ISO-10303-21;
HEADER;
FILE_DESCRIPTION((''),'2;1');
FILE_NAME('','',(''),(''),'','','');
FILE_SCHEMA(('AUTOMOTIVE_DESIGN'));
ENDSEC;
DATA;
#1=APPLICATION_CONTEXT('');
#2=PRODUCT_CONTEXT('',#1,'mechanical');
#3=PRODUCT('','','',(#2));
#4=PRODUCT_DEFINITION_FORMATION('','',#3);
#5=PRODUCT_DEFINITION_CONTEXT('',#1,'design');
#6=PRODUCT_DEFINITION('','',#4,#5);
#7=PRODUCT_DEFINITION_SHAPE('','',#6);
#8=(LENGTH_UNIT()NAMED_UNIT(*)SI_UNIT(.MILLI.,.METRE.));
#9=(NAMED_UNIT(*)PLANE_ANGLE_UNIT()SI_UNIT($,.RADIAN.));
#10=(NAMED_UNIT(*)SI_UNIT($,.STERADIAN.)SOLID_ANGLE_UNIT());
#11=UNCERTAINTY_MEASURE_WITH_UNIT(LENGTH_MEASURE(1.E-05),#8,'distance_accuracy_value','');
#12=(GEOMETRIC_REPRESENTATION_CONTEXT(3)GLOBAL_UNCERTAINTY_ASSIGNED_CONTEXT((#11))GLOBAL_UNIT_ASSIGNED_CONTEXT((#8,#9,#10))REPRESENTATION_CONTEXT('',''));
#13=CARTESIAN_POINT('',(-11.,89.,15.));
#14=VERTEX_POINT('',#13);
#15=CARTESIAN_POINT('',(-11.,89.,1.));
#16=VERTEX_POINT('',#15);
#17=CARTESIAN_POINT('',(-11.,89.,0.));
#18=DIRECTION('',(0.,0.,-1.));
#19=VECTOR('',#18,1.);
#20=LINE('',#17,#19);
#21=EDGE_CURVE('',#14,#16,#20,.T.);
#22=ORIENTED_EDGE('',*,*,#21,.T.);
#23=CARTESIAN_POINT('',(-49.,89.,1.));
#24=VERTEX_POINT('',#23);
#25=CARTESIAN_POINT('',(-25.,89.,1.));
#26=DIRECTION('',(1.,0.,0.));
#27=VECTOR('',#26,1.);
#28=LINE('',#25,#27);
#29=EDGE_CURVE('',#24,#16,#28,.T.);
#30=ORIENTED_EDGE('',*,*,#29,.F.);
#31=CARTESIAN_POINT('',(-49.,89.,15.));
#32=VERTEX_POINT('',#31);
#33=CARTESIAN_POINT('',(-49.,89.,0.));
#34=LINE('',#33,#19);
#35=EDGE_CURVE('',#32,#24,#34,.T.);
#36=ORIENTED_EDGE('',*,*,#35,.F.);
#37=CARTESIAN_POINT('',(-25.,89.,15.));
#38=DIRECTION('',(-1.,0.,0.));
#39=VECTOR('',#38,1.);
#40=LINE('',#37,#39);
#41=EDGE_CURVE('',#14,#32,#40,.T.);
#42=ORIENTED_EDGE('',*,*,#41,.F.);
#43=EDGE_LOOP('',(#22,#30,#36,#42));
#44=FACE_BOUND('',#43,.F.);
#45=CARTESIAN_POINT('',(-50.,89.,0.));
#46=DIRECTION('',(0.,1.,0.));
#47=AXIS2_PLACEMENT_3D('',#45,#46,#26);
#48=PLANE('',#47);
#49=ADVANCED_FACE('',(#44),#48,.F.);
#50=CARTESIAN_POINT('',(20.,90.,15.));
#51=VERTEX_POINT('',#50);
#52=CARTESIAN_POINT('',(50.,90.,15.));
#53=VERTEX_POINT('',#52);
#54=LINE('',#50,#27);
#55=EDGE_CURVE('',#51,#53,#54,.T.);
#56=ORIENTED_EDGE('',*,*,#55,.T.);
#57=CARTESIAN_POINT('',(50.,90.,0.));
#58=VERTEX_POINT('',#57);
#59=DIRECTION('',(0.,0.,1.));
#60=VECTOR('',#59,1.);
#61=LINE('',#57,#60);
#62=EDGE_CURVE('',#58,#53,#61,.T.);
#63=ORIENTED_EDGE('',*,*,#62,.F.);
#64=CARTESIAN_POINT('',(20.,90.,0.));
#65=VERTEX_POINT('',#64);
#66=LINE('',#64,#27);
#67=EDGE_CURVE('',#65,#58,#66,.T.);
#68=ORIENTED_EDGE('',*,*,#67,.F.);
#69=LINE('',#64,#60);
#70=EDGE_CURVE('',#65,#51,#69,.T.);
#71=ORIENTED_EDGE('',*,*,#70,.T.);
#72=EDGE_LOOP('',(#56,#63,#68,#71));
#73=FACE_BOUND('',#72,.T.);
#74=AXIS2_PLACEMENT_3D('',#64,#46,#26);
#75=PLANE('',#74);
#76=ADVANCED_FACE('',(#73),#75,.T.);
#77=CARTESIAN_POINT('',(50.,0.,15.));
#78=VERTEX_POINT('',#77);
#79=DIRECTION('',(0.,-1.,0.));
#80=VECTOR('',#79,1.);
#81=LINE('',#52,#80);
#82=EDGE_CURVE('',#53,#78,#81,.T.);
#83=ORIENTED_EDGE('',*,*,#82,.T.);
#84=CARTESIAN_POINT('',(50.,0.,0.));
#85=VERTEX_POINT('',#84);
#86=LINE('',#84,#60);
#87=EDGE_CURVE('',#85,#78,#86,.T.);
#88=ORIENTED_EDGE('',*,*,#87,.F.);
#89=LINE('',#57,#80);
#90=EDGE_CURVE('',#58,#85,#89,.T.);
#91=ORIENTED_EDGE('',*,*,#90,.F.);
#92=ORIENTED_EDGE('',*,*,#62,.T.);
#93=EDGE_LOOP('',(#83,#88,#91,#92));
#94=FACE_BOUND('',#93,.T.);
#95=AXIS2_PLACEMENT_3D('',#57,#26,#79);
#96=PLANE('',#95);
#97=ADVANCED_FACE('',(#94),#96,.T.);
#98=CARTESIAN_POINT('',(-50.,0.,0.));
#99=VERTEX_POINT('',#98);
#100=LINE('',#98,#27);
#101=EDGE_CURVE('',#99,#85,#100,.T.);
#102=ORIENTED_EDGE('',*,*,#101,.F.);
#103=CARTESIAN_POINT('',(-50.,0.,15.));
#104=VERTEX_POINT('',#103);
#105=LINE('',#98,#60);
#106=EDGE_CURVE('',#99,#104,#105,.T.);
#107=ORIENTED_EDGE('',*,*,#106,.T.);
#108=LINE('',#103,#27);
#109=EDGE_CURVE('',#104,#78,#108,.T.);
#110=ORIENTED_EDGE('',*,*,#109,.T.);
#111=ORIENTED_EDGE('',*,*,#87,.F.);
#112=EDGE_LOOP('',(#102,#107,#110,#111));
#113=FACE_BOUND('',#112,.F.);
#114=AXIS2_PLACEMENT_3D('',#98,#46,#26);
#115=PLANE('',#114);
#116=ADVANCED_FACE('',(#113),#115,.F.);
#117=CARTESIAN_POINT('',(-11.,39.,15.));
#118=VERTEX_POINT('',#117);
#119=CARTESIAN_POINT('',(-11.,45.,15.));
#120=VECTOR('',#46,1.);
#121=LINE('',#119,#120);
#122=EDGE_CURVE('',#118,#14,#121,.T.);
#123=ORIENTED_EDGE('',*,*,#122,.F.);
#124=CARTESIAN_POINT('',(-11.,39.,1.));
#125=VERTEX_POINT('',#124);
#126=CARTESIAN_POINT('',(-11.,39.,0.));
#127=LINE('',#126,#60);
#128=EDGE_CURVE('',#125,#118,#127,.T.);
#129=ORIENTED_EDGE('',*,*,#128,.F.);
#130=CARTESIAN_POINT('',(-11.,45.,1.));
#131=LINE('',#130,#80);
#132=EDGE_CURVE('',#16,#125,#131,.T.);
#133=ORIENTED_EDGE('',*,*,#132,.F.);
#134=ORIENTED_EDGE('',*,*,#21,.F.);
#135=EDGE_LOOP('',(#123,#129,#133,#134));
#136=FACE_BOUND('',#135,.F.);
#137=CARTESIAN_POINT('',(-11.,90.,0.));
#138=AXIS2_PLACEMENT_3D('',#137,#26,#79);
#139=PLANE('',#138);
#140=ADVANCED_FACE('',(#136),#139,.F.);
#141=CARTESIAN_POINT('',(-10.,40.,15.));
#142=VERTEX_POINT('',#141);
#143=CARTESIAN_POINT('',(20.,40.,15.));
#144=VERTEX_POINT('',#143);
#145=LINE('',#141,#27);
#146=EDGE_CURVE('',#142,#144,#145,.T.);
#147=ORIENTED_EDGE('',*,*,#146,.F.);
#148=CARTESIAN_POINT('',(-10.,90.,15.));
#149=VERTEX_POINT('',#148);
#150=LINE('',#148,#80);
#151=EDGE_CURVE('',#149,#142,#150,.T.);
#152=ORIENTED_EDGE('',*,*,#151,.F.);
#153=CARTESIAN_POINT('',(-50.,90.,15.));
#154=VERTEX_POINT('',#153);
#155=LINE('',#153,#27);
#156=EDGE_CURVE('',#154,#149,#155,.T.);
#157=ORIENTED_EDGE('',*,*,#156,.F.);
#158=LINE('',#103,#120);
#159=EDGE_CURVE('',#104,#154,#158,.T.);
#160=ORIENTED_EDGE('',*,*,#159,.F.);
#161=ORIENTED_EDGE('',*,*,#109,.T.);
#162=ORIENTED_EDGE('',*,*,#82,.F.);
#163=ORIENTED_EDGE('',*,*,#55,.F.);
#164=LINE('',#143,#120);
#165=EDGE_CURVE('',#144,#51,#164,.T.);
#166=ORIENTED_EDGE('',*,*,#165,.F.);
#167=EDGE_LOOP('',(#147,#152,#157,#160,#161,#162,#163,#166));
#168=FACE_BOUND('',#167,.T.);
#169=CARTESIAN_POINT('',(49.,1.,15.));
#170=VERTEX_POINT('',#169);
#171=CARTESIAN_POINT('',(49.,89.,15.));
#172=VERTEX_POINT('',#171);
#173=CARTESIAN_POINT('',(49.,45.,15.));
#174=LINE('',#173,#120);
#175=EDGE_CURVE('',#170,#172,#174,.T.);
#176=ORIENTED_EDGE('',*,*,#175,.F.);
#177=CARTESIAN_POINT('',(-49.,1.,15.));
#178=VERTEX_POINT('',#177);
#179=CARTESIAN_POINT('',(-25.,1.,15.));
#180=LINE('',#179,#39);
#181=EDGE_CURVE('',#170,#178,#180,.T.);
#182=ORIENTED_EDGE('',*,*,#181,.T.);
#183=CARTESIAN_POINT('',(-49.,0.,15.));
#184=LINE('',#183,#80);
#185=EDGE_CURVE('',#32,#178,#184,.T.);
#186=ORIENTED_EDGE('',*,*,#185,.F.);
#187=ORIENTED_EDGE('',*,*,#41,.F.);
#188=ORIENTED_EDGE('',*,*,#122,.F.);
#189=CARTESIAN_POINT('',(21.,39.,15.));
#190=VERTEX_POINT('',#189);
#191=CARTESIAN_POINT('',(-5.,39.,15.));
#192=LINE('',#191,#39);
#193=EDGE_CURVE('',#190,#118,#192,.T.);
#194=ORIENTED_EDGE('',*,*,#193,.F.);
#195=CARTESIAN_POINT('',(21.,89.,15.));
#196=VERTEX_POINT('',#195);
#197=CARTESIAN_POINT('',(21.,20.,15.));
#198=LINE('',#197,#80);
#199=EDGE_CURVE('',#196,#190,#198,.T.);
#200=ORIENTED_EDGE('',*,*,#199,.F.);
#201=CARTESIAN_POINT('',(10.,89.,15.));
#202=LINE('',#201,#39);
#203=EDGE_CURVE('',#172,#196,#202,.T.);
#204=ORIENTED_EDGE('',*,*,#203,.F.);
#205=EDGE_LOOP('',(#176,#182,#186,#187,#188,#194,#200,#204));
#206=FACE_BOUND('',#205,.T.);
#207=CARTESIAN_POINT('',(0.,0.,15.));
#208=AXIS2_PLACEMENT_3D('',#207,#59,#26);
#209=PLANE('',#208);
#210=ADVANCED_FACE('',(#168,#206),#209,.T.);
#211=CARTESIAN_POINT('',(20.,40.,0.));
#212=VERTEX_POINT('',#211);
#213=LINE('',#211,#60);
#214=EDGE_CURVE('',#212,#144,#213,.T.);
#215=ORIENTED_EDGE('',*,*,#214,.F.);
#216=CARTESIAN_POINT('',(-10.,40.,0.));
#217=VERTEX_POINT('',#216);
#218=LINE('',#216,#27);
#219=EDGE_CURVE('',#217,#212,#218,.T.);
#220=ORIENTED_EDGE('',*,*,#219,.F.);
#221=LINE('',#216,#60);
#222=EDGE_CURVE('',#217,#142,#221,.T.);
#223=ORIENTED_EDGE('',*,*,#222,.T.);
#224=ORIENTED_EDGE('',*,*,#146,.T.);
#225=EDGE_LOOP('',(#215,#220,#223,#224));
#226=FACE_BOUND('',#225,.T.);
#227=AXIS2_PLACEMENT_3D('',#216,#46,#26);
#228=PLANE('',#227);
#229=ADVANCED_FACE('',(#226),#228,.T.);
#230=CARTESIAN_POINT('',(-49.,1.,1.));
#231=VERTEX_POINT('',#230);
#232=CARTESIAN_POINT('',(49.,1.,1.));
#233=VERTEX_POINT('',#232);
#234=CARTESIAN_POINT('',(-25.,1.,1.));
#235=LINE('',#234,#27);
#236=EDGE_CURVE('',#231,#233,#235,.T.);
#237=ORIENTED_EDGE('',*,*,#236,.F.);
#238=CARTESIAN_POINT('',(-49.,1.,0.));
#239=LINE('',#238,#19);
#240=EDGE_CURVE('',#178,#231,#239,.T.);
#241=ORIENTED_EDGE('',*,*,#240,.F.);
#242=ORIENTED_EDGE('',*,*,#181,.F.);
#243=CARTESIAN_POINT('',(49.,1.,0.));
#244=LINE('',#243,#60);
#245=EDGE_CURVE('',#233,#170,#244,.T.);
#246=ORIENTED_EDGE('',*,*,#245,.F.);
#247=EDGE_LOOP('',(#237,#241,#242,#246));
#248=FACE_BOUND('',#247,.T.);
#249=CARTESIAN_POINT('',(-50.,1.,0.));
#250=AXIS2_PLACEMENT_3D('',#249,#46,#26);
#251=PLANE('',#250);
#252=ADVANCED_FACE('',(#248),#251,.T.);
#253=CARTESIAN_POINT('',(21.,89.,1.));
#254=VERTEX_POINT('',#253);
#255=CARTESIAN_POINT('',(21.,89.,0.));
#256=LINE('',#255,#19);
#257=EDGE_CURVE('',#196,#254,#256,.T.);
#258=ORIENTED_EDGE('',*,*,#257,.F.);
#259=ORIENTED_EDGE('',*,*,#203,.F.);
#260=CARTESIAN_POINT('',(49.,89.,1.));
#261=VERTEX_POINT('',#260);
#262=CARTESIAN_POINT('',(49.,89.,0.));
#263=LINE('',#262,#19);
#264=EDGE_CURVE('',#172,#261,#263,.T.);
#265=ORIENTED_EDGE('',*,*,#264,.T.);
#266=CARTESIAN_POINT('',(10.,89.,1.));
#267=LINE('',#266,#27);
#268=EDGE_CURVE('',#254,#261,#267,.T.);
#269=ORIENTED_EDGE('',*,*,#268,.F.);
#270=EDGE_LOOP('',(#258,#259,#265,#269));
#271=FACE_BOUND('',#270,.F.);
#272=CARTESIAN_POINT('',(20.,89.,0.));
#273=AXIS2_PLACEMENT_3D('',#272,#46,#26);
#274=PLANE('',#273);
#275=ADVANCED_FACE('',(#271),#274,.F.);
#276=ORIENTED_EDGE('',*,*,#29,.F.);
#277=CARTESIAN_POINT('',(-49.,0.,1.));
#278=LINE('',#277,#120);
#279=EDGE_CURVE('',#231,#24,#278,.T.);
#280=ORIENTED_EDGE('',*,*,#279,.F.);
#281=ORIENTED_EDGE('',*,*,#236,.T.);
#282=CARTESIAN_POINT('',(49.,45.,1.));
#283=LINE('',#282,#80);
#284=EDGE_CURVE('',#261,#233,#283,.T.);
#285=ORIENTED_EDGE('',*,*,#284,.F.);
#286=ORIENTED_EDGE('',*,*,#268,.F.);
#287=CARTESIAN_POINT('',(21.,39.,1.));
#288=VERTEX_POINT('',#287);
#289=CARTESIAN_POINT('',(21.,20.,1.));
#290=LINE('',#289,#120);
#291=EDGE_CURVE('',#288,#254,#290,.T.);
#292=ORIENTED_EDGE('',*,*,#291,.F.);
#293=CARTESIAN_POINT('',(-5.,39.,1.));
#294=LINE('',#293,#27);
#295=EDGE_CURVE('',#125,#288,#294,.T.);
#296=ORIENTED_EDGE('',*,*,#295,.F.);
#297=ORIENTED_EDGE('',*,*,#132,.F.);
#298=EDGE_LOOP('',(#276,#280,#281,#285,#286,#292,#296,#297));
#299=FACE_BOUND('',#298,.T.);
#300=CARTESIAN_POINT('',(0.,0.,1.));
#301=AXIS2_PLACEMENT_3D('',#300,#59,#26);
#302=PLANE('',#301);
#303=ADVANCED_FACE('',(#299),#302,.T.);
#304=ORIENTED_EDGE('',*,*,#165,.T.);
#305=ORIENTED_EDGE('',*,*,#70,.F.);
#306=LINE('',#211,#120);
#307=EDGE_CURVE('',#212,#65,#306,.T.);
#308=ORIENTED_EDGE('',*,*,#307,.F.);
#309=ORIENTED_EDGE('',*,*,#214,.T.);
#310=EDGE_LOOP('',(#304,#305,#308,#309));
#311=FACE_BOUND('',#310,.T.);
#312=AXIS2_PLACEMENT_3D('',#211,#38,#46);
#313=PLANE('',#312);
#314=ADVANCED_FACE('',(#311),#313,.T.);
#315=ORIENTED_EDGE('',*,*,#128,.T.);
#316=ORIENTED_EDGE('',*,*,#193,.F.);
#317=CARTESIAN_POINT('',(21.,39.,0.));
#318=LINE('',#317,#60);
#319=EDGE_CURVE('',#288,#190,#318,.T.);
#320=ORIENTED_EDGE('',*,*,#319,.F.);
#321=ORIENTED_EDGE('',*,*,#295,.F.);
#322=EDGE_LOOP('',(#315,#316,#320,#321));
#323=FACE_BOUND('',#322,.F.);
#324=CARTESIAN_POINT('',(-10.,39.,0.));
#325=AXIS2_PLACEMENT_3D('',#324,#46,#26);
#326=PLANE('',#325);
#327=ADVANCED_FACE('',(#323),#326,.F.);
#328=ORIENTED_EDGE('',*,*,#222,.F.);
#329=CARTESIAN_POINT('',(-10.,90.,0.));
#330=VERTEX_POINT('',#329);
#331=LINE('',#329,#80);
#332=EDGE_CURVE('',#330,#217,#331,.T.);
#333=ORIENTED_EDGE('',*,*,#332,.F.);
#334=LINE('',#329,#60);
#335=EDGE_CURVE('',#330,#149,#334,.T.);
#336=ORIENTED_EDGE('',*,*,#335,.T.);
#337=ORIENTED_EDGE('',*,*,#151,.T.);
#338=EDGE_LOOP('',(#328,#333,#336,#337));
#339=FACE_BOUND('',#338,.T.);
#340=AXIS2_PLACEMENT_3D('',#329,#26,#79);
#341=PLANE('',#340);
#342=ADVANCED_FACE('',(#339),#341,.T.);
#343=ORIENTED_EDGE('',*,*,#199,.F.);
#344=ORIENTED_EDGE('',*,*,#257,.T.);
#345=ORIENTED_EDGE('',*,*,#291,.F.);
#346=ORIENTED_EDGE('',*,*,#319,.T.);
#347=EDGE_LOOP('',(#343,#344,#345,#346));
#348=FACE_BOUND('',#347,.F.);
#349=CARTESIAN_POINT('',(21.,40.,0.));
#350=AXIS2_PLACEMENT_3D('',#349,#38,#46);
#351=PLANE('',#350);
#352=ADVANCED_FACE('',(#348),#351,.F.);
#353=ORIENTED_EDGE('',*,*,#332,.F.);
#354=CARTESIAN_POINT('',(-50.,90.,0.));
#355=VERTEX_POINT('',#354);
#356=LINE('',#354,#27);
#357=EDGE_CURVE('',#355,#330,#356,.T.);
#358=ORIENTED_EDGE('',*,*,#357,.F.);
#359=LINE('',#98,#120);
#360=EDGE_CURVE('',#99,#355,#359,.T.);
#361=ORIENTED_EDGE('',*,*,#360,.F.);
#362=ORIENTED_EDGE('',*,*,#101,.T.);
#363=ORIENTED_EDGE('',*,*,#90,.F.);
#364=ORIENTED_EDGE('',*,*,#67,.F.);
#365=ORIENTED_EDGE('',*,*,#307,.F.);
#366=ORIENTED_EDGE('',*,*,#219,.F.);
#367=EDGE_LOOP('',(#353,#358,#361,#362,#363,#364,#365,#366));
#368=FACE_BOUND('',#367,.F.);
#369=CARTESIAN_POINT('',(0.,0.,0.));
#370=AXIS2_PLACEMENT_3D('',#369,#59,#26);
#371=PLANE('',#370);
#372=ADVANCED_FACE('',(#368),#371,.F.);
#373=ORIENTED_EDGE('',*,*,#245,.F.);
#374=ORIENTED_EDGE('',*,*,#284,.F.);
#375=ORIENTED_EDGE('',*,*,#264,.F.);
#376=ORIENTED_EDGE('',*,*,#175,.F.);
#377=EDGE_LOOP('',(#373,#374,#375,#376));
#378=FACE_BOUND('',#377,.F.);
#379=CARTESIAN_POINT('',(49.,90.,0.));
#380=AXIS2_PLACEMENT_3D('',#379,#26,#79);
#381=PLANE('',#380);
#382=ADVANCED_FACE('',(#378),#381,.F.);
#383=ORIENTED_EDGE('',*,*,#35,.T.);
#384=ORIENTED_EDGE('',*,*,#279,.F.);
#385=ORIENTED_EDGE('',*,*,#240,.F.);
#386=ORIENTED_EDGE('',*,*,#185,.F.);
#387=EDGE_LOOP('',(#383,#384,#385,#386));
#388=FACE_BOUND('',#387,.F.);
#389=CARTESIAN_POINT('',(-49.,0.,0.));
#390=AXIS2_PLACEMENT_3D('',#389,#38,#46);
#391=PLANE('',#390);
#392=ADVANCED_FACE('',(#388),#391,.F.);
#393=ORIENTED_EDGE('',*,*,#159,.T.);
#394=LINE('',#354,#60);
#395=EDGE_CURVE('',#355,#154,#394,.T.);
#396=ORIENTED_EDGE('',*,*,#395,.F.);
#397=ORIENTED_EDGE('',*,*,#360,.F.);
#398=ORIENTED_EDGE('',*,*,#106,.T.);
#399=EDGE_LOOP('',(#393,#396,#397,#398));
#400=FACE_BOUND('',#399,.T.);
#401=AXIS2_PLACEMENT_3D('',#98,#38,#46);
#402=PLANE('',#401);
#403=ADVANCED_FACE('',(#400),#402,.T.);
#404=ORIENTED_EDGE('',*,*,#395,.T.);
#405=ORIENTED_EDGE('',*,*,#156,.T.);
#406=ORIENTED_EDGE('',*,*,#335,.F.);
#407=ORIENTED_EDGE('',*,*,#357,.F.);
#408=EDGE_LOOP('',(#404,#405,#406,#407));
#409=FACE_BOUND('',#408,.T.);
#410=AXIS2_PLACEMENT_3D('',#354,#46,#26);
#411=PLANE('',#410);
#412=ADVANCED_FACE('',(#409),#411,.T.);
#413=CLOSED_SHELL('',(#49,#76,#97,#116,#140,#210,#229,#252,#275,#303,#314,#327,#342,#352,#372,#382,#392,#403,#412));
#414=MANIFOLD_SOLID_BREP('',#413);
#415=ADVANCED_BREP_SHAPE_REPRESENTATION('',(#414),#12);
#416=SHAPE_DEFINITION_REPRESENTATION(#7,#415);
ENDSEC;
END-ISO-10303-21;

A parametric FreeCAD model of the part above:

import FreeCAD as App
import Part
import Sketcher


def faces_at(feature, points):
    """Names of the faces that lie closest to the given points."""
    faces = feature.Shape.Faces
    near = lambda p: min(range(len(faces)), key=lambda i: faces[i].distToShape(Part.Vertex(*p))[0])
    return sorted({f"Face{near(p) + 1}" for p in points})

doc = App.newDocument("Part")
body = doc.addObject("PartDesign::Body", "Body")

# Sketch on XY plane
sketch1 = body.newObject("Sketcher::SketchObject", "Sketch")
sketch1.AttachmentSupport = (doc.getObject("XY_Plane"), [""])
sketch1.MapMode = "FlatFace"
sketch1.addGeometry([
    Part.LineSegment(App.Vector(-50, 90, 0), App.Vector(-50, 0, 0)),  # 0
    Part.LineSegment(App.Vector(-50, 0, 0), App.Vector(50, 0, 0)),  # 1
    Part.LineSegment(App.Vector(50, 0, 0), App.Vector(50, 90, 0)),  # 2
    Part.LineSegment(App.Vector(50, 90, 0), App.Vector(20, 90, 0)),  # 3
    Part.LineSegment(App.Vector(20, 90, 0), App.Vector(20, 40, 0)),  # 4
    Part.LineSegment(App.Vector(20, 40, 0), App.Vector(-10, 40, 0)),  # 5
    Part.LineSegment(App.Vector(-10, 40, 0), App.Vector(-10, 90, 0)),  # 6
    Part.LineSegment(App.Vector(-10, 90, 0), App.Vector(-50, 90, 0)),  # 7
], False)
sketch1.addConstraint([
    Sketcher.Constraint("Coincident", 0, 2, 1, 1),
    Sketcher.Constraint("Coincident", 1, 2, 2, 1),
    Sketcher.Constraint("Coincident", 2, 2, 3, 1),
    Sketcher.Constraint("Coincident", 3, 2, 4, 1),
    Sketcher.Constraint("Coincident", 4, 2, 5, 1),
    Sketcher.Constraint("Coincident", 5, 2, 6, 1),
    Sketcher.Constraint("Coincident", 6, 2, 7, 1),
    Sketcher.Constraint("Coincident", 7, 2, 0, 1),
    Sketcher.Constraint("Vertical", 0),
    Sketcher.Constraint("Horizontal", 1),
    Sketcher.Constraint("Vertical", 2),
    Sketcher.Constraint("Horizontal", 3),
    Sketcher.Constraint("Vertical", 4),
    Sketcher.Constraint("Horizontal", 5),
    Sketcher.Constraint("Vertical", 6),
    Sketcher.Constraint("Horizontal", 7),
    Sketcher.Constraint("Symmetric", 0, 2, 1, 2, -1, 1),
    Sketcher.Constraint("Horizontal", 3, 2, 6, 2),
    Sketcher.Constraint("Equal", 3, 5),
    Sketcher.Constraint("DistanceX", 7, 2, 7, 1, 40.0),
    Sketcher.Constraint("DistanceY", 0, 2, 0, 1, 90.0),
    Sketcher.Constraint("DistanceY", 4, 2, 4, 1, 50.0),
    Sketcher.Constraint("DistanceX", 0, 2, -1, 1, 50.0),
])
pad1 = body.newObject("PartDesign::Pad", "Pad")
pad1.Profile = sketch1
pad1.Length = 15
doc.recompute()

thickness = body.newObject("PartDesign::Thickness", "Thickness")
thickness.Base = (pad1, faces_at(pad1, [(-3.333, 13.333, 15)]))
thickness.Value = 1
thickness.Reversed = True
thickness.Join = "Intersection"

doc.recompute()
